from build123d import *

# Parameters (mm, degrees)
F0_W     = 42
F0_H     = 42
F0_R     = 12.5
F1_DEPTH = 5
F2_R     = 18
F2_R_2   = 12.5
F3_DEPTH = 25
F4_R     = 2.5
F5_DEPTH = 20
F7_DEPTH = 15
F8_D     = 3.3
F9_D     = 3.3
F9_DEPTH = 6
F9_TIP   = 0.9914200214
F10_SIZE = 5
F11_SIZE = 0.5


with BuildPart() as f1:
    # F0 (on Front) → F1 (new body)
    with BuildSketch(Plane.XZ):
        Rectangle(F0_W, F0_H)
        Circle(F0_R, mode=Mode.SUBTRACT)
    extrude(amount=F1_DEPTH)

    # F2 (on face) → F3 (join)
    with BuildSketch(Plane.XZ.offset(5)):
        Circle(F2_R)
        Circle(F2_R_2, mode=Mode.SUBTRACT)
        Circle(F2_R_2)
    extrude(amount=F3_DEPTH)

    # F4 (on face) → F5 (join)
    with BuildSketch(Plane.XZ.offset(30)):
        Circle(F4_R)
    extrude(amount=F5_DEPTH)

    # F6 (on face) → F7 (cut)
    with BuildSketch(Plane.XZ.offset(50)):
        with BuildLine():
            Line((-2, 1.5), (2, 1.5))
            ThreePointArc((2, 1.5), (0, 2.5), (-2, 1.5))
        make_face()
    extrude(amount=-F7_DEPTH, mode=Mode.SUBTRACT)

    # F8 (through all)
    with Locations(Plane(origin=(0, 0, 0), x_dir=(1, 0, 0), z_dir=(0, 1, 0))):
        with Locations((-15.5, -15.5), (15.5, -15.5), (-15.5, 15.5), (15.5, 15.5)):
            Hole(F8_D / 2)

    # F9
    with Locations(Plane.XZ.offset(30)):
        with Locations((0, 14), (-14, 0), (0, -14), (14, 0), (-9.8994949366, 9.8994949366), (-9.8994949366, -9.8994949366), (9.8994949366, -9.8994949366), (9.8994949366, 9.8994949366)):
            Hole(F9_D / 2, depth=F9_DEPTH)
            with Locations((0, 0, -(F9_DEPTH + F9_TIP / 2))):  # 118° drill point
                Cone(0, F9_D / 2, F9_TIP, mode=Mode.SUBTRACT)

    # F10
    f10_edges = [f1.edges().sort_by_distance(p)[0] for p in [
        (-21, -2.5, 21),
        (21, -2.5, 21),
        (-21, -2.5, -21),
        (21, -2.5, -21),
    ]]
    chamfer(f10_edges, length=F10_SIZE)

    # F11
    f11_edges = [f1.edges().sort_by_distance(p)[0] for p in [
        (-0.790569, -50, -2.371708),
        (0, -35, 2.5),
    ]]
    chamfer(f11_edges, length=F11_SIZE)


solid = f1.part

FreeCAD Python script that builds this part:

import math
import FreeCAD as App
import Part
import Sketcher
from FreeCAD import Vector
Q = App.Units.Quantity


def edges_at(feature, points):
    """Names of the edges that pass closest to the given points."""
    edges = feature.Shape.Edges
    near = lambda p: min(range(len(edges)), key=lambda i: edges[i].distToShape(Part.Vertex(*p))[0])
    return sorted({f"Edge{near(p) + 1}" for p in points})

doc = App.newDocument("Part")
params = doc.addObject("Spreadsheet::Sheet", "Params")
for row, (alias, value) in enumerate([
    ("sketch1_diameter", "25 mm"),
    ("sketch1_width", "42 mm"),
    ("pad1_length", "5 mm"),
    ("sketch2_diameter", "36 mm"),
    ("pad2_length", "25 mm"),
    ("sketch3_diameter", "5 mm"),
    ("pad3_length", "20 mm"),
    ("sketch4_radius", "2.5 mm"),
    ("sketch4_width", "4 mm"),
    ("pocket1_length", "15 mm"),
    ("sketch5_diameter", "3.3 mm"),
    ("hole_diameter", "3.3 mm"),
    ("sketch6_diameter", "3.3 mm"),
    ("hole2_diameter", "3.3 mm"),
    ("hole2_depth", "6 mm"),
    ("chamfer_size", "5 mm"),
    ("chamfer2_size", "0.5 mm"),
], start=1):
    params.set(f"A{row}", alias)
    params.set(f"B{row}", "=" + value)
    params.setAlias(f"B{row}", alias)

body = doc.addObject("PartDesign::Body", "Body")

# Sketch on XZ plane
sketch1 = body.newObject("Sketcher::SketchObject", "Sketch")
sketch1.AttachmentSupport = (doc.getObject("XZ_Plane"), [""])
sketch1.MapMode = "FlatFace"
sketch1.addGeometry([
    Part.LineSegment(Vector(-21, 21, 0), Vector(-21, -21, 0)),  # 0
    Part.LineSegment(Vector(-21, -21, 0), Vector(21, -21, 0)),  # 1
    Part.LineSegment(Vector(21, -21, 0), Vector(21, 21, 0)),  # 2
    Part.LineSegment(Vector(21, 21, 0), Vector(-21, 21, 0)),  # 3
    Part.Circle(Vector(0, 0, 0), Vector(0, 0, 1), 12.5),  # 4
], False)
sketch1.addConstraint([
    Sketcher.Constraint("Coincident", 0, 2, 1, 1),
    Sketcher.Constraint("Coincident", 1, 2, 2, 1),
    Sketcher.Constraint("Coincident", 2, 2, 3, 1),
    Sketcher.Constraint("Coincident", 3, 2, 0, 1),
    Sketcher.Constraint("Vertical", 0),
    Sketcher.Constraint("Horizontal", 1),
    Sketcher.Constraint("Vertical", 2),
    Sketcher.Constraint("Horizontal", 3),
    Sketcher.Constraint("Coincident", 4, 3, -1, 1),
    Sketcher.Constraint("Symmetric", 0, 2, 2, 2, -1, 1),
    Sketcher.Constraint("Equal", 3, 0),
    Sketcher.Constraint("Diameter", 4, Q("25 mm")),
    Sketcher.Constraint("DistanceX", 1, 1, 1, 2, Q("42 mm")),
])
sketch1.setExpression("Constraints[11]", "Params.sketch1_diameter")
sketch1.setExpression("Constraints[12]", "Params.sketch1_width")
pad1 = body.newObject("PartDesign::Pad", "Pad")
pad1.Profile = sketch1
pad1.setExpression("Length", "Params.pad1_length")

# Sketch on XZ plane
sketch2 = body.newObject("Sketcher::SketchObject", "Sketch001")
sketch2.AttachmentSupport = (doc.getObject("XZ_Plane"), [""])
sketch2.MapMode = "FlatFace"
sketch2.AttachmentOffset = App.Placement(Vector(0, 0, 5), App.Rotation())
sketch2.addGeometry(Part.Circle(Vector(0, 0, 0), Vector(0, 0, 1), 18), False)
sketch2.addConstraint([
    Sketcher.Constraint("Coincident", 0, 3, -1, 1),
    Sketcher.Constraint("Diameter", 0, Q("36 mm")),
])
sketch2.setExpression("Constraints[1]", "Params.sketch2_diameter")
pad2 = body.newObject("PartDesign::Pad", "Pad001")
pad2.Profile = sketch2
pad2.setExpression("Length", "Params.pad2_length")

# Sketch on XZ plane
sketch3 = body.newObject("Sketcher::SketchObject", "Sketch002")
sketch3.AttachmentSupport = (doc.getObject("XZ_Plane"), [""])
sketch3.MapMode = "FlatFace"
sketch3.AttachmentOffset = App.Placement(Vector(0, 0, 30), App.Rotation())
sketch3.addGeometry(Part.Circle(Vector(0, 0, 0), Vector(0, 0, 1), 2.5), False)
sketch3.addConstraint([
    Sketcher.Constraint("Coincident", 0, 3, -1, 1),
    Sketcher.Constraint("Diameter", 0, Q("5 mm")),
])
sketch3.setExpression("Constraints[1]", "Params.sketch3_diameter")
pad3 = body.newObject("PartDesign::Pad", "Pad002")
pad3.Profile = sketch3
pad3.setExpression("Length", "Params.pad3_length")

# Sketch on XZ plane
sketch4 = body.newObject("Sketcher::SketchObject", "Sketch003")
sketch4.AttachmentSupport = (doc.getObject("XZ_Plane"), [""])
sketch4.MapMode = "FlatFace"
sketch4.AttachmentOffset = App.Placement(Vector(0, 0, 50), App.Rotation())
sketch4.addGeometry([
    Part.LineSegment(Vector(-2, 1.5, 0), Vector(2, 1.5, 0)),
    Part.ArcOfCircle(Part.Circle(Vector(0, 0, 0), Vector(0, 0, 1), 2.5), math.radians(36.869898), math.radians(143.130102)),
], False)
sketch4.addConstraint([
    Sketcher.Constraint("Coincident", 0, 1, 1, 2),
    Sketcher.Constraint("Coincident", 1, 1, 0, 2),
    Sketcher.Constraint("Horizontal", 0),
    Sketcher.Constraint("Coincident", 1, 3, -1, 1),
    Sketcher.Constraint("Radius", 1, Q("2.5 mm")),
    Sketcher.Constraint("DistanceX", 0, 1, 0, 2, Q("4 mm")),
])
sketch4.setExpression("Constraints[4]", "Params.sketch4_radius")
sketch4.setExpression("Constraints[5]", "Params.sketch4_width")
pocket1 = body.newObject("PartDesign::Pocket", "Pocket")
pocket1.Profile = sketch4
pocket1.setExpression("Length", "Params.pocket1_length")

# Sketch on XZ plane
sketch5 = body.newObject("Sketcher::SketchObject", "Sketch004")
sketch5.AttachmentSupport = (doc.getObject("XZ_Plane"), [""])
sketch5.MapMode = "FlatFace"
sketch5.addGeometry([
    Part.Circle(Vector(-15.5, 15.5, 0), Vector(0, 0, 1), 1.65),
    Part.Circle(Vector(15.5, 15.5, 0), Vector(0, 0, 1), 1.65),
    Part.Circle(Vector(-15.5, -15.5, 0), Vector(0, 0, 1), 1.65),
    Part.Circle(Vector(15.5, -15.5, 0), Vector(0, 0, 1), 1.65),
], False)
sketch5.addConstraint([
    Sketcher.Constraint("Equal", 0, 1),
    Sketcher.Constraint("Equal", 1, 2),
    Sketcher.Constraint("Equal", 2, 3),
    Sketcher.Constraint("Symmetric", 1, 3, 2, 3, -1, 1),
    Sketcher.Constraint("Symmetric", 0, 3, 3, 3, -1, 1),
    Sketcher.Constraint("Symmetric", 0, 3, 1, 3, -2),
    Sketcher.Constraint("Diameter", 0, Q("3.3 mm")),
    Sketcher.Constraint("DistanceX", 0, 3, 1, 3, Q("31 mm")),
    Sketcher.Constraint("DistanceY", 2, 3, 0, 3, Q("31 mm")),
])
sketch5.setExpression("Constraints[6]", "Params.sketch5_diameter")
doc.recompute()
hole = body.newObject("PartDesign::Hole", "Hole")
hole.Profile = sketch5
hole.ThreadType = "None"
hole.setExpression("Diameter", "Params.hole_diameter")
hole.DepthType = "ThroughAll"
hole.Reversed = True

# Sketch on XZ plane
sketch6 = body.newObject("Sketcher::SketchObject", "Sketch005")
sketch6.AttachmentSupport = (doc.getObject("XZ_Plane"), [""])
sketch6.MapMode = "FlatFace"
sketch6.AttachmentOffset = App.Placement(Vector(0, 0, 30), App.Rotation())
sketch6.addGeometry([
    Part.Circle(Vector(0, 14, 0), Vector(0, 0, 1), 1.65),  # 0
    Part.Circle(Vector(-14, 0, 0), Vector(0, 0, 1), 1.65),  # 1
    Part.Circle(Vector(0, -14, 0), Vector(0, 0, 1), 1.65),  # 2
    Part.Circle(Vector(14, 0, 0), Vector(0, 0, 1), 1.65),  # 3
    Part.Circle(Vector(-9.899495, 9.899495, 0), Vector(0, 0, 1), 1.65),  # 4
    Part.Circle(Vector(-9.899495, -9.899495, 0), Vector(0, 0, 1), 1.65),  # 5
    Part.Circle(Vector(9.899495, -9.899495, 0), Vector(0, 0, 1), 1.65),  # 6
    Part.Circle(Vector(9.899495, 9.899495, 0), Vector(0, 0, 1), 1.65),  # 7
], False)
sketch6.addConstraint([
    Sketcher.Constraint("Equal", 0, 1),
    Sketcher.Constraint("Equal", 1, 2),
    Sketcher.Constraint("Equal", 2, 3),
    Sketcher.Constraint("Equal", 3, 4),
    Sketcher.Constraint("Equal", 4, 5),
    Sketcher.Constraint("Equal", 5, 6),
    Sketcher.Constraint("Equal", 6, 7),
    Sketcher.Constraint("Symmetric", 0, 3, 2, 3, -1, 1),
    Sketcher.Constraint("Symmetric", 1, 3, 3, 3, -1, 1),
    Sketcher.Constraint("Symmetric", 4, 3, 6, 3, -1, 1),
    Sketcher.Constraint("Symmetric", 5, 3, 7, 3, -1, 1),
    Sketcher.Constraint("Symmetric", 5, 3, 6, 3, -2),
    Sketcher.Constraint("PointOnObject", 0, 3, -2),
    Sketcher.Constraint("PointOnObject", 1, 3, -1),
    Sketcher.Constraint("Diameter", 0, Q("3.3 mm")),
    Sketcher.Constraint("DistanceY", -1, 1, 0, 3, Q("14 mm")),
    Sketcher.Constraint("DistanceX", 1, 3, -1, 1, Q("14 mm")),
    Sketcher.Constraint("DistanceY", 5, 3, 4, 3, Q("19.79899 mm")),
    Sketcher.Constraint("DistanceX", 5, 3, 6, 3, Q("19.79899 mm")),
])
sketch6.setExpression("Constraints[14]", "Params.sketch6_diameter")
doc.recompute()
hole2 = body.newObject("PartDesign::Hole", "Hole001")
hole2.Profile = sketch6
hole2.ThreadType = "None"
hole2.setExpression("Diameter", "Params.hole2_diameter")
hole2.DepthType = "Dimension"
hole2.setExpression("Depth", "Params.hole2_depth")
hole2.DrillPoint = "Angled"
hole2.DrillPointAngle = 118
doc.recompute()

chamfer = body.newObject("PartDesign::Chamfer", "Chamfer")
chamfer.Base = (hole2, edges_at(hole2, [
    (-21, -2.5, 21),
    (21, -2.5, 21),
    (-21, -2.5, -21),
    (21, -2.5, -21),
]))
chamfer.setExpression("Size", "Params.chamfer_size")
doc.recompute()

chamfer2 = body.newObject("PartDesign::Chamfer", "Chamfer001")
chamfer2.Base = (chamfer, edges_at(chamfer, [(-0.791, -50, -2.372), (0, -35, 2.5)]))
chamfer2.setExpression("Size", "Params.chamfer2_size")

doc.recompute()
